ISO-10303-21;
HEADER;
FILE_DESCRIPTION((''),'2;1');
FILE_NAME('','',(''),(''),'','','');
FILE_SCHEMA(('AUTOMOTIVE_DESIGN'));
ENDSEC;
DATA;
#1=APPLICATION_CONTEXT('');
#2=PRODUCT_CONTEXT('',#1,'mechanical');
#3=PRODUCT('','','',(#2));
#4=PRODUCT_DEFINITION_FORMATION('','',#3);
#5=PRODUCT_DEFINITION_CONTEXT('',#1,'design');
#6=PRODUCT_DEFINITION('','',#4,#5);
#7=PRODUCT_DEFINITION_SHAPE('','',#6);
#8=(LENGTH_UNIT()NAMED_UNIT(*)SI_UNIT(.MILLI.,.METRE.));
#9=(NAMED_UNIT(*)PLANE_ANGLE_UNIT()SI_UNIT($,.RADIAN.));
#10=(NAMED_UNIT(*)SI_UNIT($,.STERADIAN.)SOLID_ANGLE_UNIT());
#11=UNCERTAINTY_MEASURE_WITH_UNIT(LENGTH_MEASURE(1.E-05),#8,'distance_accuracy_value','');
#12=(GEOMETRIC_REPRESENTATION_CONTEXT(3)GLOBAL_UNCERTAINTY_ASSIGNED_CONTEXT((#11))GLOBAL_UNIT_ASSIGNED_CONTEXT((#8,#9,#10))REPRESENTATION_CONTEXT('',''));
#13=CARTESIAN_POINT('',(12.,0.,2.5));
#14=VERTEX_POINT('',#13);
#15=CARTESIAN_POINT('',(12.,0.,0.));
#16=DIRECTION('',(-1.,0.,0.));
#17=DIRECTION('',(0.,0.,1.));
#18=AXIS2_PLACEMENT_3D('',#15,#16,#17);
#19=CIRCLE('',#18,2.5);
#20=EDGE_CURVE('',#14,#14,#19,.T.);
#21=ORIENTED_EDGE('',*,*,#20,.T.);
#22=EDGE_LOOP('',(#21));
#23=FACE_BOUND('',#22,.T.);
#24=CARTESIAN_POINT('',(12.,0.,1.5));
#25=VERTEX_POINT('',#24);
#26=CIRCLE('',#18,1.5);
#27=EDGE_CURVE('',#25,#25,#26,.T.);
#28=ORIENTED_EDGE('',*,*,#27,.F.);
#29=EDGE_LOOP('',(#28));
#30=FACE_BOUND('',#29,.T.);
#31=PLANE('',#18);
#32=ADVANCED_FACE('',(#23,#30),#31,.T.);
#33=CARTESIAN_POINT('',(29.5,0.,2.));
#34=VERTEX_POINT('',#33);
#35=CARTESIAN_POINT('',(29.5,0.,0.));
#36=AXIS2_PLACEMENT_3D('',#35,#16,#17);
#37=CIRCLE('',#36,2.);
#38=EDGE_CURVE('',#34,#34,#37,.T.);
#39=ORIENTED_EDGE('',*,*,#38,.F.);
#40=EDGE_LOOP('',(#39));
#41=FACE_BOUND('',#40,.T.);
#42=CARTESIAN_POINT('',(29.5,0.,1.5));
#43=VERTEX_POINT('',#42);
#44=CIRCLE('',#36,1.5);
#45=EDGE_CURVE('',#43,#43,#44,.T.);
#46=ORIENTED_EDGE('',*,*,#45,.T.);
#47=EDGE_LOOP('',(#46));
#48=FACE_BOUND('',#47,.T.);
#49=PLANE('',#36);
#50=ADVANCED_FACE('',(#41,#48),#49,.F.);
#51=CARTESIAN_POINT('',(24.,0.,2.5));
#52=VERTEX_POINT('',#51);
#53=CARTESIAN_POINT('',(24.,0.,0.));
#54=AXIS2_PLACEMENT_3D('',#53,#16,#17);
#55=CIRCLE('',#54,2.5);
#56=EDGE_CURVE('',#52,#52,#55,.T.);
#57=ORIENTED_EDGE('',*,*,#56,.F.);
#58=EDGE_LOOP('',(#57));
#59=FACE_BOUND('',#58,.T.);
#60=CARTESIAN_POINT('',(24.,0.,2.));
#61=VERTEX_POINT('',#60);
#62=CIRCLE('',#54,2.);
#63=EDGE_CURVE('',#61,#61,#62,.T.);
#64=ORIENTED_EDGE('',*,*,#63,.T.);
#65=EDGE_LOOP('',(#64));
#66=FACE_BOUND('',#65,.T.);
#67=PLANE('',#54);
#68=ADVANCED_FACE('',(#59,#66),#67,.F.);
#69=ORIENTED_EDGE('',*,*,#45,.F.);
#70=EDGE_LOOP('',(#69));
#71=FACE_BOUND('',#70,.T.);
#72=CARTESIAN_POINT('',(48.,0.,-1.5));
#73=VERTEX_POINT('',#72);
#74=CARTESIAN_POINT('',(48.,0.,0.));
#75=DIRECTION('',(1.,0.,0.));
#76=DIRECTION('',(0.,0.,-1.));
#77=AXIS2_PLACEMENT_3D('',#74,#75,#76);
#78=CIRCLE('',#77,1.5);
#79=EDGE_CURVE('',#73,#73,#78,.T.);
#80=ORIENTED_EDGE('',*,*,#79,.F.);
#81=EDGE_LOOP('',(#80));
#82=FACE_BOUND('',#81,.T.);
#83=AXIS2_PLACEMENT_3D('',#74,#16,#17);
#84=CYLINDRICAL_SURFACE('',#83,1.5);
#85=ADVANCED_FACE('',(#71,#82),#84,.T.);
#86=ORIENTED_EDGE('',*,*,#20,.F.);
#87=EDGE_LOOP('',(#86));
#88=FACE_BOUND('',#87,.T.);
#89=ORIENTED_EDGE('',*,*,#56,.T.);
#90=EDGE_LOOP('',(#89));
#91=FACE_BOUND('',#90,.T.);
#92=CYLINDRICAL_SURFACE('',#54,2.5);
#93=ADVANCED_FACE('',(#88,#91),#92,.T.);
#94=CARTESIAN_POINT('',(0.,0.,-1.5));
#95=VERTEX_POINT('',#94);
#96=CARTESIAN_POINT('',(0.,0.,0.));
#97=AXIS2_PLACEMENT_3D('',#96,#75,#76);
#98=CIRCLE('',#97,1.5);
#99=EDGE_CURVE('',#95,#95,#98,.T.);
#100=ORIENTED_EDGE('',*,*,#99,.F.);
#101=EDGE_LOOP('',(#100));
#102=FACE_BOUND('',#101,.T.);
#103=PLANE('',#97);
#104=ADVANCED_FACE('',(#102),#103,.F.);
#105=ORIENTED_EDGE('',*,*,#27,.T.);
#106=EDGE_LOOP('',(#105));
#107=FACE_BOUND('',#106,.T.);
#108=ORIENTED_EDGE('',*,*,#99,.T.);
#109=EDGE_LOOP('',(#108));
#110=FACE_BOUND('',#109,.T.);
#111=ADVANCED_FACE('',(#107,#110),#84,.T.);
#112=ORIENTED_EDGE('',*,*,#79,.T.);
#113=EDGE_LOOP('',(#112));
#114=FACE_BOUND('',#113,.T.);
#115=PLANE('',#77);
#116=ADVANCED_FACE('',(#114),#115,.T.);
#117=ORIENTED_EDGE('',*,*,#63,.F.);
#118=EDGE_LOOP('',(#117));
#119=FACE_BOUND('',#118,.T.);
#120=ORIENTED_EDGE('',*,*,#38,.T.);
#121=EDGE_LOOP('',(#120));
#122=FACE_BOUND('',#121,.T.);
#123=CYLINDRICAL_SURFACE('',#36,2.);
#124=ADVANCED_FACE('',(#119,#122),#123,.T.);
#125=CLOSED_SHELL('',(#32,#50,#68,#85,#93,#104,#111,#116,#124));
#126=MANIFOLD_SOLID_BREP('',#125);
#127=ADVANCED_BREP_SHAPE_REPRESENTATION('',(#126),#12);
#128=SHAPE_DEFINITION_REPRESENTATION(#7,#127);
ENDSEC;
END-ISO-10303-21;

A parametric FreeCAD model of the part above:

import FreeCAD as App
import Part
import Sketcher

V = App.Vector
Q = App.Units.Quantity

doc = App.newDocument("Part")
params = doc.addObject("Spreadsheet::Sheet", "Params")
for row, (alias, value) in enumerate([
    ("sketch1_diameter", "3 mm"),
    ("pad1_length", "48 mm"),
    ("sketch2_diameter", "5 mm"),
    ("sketch2_diameter2", "3 mm"),
    ("pad2_length", "12 mm"),
    ("sketch3_diameter", "4 mm"),
    ("sketch3_diameter2", "3 mm"),
    ("pad3_length", "5.5 mm"),
], start=1):
    params.set(f"A{row}", alias)
    params.set(f"B{row}", "=" + value)
    params.setAlias(f"B{row}", alias)

body = doc.addObject("PartDesign::Body", "Body")

# Sketch on YZ plane
sketch1 = body.newObject("Sketcher::SketchObject", "Sketch")
sketch1.AttachmentSupport = (doc.getObject("YZ_Plane"), [""])
sketch1.MapMode = "FlatFace"
sketch1.addGeometry(Part.Circle(V(0, 0, 0), V(0, 0, 1), 1.5), False)
sketch1.addConstraint([
    Sketcher.Constraint("Coincident", 0, 3, -1, 1),
    Sketcher.Constraint("Diameter", 0, Q("3 mm")),
])
sketch1.setExpression("Constraints[1]", "Params.sketch1_diameter")
pad1 = body.newObject("PartDesign::Pad", "Pad")
pad1.Profile = sketch1
pad1.setExpression("Length", "Params.pad1_length")

# Sketch on YZ plane
sketch2 = body.newObject("Sketcher::SketchObject", "Sketch001")
sketch2.AttachmentSupport = (doc.getObject("YZ_Plane"), [""])
sketch2.MapMode = "FlatFace"
sketch2.AttachmentOffset = App.Placement(V(0, 0, 12), App.Rotation())
sketch2.addGeometry([
    Part.Circle(V(0, 0, 0), V(0, 0, 1), 2.5),
    Part.Circle(V(0, 0, 0), V(0, 0, 1), 1.5),
], False)
sketch2.addConstraint([
    Sketcher.Constraint("Coincident", 0, 3, -1, 1),
    Sketcher.Constraint("Coincident", 1, 3, -1, 1),
    Sketcher.Constraint("Diameter", 0, Q("5 mm")),
    Sketcher.Constraint("Diameter", 1, Q("3 mm")),
])
sketch2.setExpression("Constraints[2]", "Params.sketch2_diameter")
sketch2.setExpression("Constraints[3]", "Params.sketch2_diameter2")
pad2 = body.newObject("PartDesign::Pad", "Pad001")
pad2.Profile = sketch2
pad2.setExpression("Length", "Params.pad2_length")

# Sketch on YZ plane
sketch3 = body.newObject("Sketcher::SketchObject", "Sketch002")
sketch3.AttachmentSupport = (doc.getObject("YZ_Plane"), [""])
sketch3.MapMode = "FlatFace"
sketch3.AttachmentOffset = App.Placement(V(0, 0, 24), App.Rotation())
sketch3.addGeometry([
    Part.Circle(V(0, 0, 0), V(0, 0, 1), 2),
    Part.Circle(V(0, 0, 0), V(0, 0, 1), 1.5),
], False)
sketch3.addConstraint([
    Sketcher.Constraint("Coincident", 0, 3, -1, 1),
    Sketcher.Constraint("Coincident", 1, 3, -1, 1),
    Sketcher.Constraint("Diameter", 0, Q("4 mm")),
    Sketcher.Constraint("Diameter", 1, Q("3 mm")),
])
sketch3.setExpression("Constraints[2]", "Params.sketch3_diameter")
sketch3.setExpression("Constraints[3]", "Params.sketch3_diameter2")
pad3 = body.newObject("PartDesign::Pad", "Pad002")
pad3.Profile = sketch3
pad3.setExpression("Length", "Params.pad3_length")

doc.recompute()
